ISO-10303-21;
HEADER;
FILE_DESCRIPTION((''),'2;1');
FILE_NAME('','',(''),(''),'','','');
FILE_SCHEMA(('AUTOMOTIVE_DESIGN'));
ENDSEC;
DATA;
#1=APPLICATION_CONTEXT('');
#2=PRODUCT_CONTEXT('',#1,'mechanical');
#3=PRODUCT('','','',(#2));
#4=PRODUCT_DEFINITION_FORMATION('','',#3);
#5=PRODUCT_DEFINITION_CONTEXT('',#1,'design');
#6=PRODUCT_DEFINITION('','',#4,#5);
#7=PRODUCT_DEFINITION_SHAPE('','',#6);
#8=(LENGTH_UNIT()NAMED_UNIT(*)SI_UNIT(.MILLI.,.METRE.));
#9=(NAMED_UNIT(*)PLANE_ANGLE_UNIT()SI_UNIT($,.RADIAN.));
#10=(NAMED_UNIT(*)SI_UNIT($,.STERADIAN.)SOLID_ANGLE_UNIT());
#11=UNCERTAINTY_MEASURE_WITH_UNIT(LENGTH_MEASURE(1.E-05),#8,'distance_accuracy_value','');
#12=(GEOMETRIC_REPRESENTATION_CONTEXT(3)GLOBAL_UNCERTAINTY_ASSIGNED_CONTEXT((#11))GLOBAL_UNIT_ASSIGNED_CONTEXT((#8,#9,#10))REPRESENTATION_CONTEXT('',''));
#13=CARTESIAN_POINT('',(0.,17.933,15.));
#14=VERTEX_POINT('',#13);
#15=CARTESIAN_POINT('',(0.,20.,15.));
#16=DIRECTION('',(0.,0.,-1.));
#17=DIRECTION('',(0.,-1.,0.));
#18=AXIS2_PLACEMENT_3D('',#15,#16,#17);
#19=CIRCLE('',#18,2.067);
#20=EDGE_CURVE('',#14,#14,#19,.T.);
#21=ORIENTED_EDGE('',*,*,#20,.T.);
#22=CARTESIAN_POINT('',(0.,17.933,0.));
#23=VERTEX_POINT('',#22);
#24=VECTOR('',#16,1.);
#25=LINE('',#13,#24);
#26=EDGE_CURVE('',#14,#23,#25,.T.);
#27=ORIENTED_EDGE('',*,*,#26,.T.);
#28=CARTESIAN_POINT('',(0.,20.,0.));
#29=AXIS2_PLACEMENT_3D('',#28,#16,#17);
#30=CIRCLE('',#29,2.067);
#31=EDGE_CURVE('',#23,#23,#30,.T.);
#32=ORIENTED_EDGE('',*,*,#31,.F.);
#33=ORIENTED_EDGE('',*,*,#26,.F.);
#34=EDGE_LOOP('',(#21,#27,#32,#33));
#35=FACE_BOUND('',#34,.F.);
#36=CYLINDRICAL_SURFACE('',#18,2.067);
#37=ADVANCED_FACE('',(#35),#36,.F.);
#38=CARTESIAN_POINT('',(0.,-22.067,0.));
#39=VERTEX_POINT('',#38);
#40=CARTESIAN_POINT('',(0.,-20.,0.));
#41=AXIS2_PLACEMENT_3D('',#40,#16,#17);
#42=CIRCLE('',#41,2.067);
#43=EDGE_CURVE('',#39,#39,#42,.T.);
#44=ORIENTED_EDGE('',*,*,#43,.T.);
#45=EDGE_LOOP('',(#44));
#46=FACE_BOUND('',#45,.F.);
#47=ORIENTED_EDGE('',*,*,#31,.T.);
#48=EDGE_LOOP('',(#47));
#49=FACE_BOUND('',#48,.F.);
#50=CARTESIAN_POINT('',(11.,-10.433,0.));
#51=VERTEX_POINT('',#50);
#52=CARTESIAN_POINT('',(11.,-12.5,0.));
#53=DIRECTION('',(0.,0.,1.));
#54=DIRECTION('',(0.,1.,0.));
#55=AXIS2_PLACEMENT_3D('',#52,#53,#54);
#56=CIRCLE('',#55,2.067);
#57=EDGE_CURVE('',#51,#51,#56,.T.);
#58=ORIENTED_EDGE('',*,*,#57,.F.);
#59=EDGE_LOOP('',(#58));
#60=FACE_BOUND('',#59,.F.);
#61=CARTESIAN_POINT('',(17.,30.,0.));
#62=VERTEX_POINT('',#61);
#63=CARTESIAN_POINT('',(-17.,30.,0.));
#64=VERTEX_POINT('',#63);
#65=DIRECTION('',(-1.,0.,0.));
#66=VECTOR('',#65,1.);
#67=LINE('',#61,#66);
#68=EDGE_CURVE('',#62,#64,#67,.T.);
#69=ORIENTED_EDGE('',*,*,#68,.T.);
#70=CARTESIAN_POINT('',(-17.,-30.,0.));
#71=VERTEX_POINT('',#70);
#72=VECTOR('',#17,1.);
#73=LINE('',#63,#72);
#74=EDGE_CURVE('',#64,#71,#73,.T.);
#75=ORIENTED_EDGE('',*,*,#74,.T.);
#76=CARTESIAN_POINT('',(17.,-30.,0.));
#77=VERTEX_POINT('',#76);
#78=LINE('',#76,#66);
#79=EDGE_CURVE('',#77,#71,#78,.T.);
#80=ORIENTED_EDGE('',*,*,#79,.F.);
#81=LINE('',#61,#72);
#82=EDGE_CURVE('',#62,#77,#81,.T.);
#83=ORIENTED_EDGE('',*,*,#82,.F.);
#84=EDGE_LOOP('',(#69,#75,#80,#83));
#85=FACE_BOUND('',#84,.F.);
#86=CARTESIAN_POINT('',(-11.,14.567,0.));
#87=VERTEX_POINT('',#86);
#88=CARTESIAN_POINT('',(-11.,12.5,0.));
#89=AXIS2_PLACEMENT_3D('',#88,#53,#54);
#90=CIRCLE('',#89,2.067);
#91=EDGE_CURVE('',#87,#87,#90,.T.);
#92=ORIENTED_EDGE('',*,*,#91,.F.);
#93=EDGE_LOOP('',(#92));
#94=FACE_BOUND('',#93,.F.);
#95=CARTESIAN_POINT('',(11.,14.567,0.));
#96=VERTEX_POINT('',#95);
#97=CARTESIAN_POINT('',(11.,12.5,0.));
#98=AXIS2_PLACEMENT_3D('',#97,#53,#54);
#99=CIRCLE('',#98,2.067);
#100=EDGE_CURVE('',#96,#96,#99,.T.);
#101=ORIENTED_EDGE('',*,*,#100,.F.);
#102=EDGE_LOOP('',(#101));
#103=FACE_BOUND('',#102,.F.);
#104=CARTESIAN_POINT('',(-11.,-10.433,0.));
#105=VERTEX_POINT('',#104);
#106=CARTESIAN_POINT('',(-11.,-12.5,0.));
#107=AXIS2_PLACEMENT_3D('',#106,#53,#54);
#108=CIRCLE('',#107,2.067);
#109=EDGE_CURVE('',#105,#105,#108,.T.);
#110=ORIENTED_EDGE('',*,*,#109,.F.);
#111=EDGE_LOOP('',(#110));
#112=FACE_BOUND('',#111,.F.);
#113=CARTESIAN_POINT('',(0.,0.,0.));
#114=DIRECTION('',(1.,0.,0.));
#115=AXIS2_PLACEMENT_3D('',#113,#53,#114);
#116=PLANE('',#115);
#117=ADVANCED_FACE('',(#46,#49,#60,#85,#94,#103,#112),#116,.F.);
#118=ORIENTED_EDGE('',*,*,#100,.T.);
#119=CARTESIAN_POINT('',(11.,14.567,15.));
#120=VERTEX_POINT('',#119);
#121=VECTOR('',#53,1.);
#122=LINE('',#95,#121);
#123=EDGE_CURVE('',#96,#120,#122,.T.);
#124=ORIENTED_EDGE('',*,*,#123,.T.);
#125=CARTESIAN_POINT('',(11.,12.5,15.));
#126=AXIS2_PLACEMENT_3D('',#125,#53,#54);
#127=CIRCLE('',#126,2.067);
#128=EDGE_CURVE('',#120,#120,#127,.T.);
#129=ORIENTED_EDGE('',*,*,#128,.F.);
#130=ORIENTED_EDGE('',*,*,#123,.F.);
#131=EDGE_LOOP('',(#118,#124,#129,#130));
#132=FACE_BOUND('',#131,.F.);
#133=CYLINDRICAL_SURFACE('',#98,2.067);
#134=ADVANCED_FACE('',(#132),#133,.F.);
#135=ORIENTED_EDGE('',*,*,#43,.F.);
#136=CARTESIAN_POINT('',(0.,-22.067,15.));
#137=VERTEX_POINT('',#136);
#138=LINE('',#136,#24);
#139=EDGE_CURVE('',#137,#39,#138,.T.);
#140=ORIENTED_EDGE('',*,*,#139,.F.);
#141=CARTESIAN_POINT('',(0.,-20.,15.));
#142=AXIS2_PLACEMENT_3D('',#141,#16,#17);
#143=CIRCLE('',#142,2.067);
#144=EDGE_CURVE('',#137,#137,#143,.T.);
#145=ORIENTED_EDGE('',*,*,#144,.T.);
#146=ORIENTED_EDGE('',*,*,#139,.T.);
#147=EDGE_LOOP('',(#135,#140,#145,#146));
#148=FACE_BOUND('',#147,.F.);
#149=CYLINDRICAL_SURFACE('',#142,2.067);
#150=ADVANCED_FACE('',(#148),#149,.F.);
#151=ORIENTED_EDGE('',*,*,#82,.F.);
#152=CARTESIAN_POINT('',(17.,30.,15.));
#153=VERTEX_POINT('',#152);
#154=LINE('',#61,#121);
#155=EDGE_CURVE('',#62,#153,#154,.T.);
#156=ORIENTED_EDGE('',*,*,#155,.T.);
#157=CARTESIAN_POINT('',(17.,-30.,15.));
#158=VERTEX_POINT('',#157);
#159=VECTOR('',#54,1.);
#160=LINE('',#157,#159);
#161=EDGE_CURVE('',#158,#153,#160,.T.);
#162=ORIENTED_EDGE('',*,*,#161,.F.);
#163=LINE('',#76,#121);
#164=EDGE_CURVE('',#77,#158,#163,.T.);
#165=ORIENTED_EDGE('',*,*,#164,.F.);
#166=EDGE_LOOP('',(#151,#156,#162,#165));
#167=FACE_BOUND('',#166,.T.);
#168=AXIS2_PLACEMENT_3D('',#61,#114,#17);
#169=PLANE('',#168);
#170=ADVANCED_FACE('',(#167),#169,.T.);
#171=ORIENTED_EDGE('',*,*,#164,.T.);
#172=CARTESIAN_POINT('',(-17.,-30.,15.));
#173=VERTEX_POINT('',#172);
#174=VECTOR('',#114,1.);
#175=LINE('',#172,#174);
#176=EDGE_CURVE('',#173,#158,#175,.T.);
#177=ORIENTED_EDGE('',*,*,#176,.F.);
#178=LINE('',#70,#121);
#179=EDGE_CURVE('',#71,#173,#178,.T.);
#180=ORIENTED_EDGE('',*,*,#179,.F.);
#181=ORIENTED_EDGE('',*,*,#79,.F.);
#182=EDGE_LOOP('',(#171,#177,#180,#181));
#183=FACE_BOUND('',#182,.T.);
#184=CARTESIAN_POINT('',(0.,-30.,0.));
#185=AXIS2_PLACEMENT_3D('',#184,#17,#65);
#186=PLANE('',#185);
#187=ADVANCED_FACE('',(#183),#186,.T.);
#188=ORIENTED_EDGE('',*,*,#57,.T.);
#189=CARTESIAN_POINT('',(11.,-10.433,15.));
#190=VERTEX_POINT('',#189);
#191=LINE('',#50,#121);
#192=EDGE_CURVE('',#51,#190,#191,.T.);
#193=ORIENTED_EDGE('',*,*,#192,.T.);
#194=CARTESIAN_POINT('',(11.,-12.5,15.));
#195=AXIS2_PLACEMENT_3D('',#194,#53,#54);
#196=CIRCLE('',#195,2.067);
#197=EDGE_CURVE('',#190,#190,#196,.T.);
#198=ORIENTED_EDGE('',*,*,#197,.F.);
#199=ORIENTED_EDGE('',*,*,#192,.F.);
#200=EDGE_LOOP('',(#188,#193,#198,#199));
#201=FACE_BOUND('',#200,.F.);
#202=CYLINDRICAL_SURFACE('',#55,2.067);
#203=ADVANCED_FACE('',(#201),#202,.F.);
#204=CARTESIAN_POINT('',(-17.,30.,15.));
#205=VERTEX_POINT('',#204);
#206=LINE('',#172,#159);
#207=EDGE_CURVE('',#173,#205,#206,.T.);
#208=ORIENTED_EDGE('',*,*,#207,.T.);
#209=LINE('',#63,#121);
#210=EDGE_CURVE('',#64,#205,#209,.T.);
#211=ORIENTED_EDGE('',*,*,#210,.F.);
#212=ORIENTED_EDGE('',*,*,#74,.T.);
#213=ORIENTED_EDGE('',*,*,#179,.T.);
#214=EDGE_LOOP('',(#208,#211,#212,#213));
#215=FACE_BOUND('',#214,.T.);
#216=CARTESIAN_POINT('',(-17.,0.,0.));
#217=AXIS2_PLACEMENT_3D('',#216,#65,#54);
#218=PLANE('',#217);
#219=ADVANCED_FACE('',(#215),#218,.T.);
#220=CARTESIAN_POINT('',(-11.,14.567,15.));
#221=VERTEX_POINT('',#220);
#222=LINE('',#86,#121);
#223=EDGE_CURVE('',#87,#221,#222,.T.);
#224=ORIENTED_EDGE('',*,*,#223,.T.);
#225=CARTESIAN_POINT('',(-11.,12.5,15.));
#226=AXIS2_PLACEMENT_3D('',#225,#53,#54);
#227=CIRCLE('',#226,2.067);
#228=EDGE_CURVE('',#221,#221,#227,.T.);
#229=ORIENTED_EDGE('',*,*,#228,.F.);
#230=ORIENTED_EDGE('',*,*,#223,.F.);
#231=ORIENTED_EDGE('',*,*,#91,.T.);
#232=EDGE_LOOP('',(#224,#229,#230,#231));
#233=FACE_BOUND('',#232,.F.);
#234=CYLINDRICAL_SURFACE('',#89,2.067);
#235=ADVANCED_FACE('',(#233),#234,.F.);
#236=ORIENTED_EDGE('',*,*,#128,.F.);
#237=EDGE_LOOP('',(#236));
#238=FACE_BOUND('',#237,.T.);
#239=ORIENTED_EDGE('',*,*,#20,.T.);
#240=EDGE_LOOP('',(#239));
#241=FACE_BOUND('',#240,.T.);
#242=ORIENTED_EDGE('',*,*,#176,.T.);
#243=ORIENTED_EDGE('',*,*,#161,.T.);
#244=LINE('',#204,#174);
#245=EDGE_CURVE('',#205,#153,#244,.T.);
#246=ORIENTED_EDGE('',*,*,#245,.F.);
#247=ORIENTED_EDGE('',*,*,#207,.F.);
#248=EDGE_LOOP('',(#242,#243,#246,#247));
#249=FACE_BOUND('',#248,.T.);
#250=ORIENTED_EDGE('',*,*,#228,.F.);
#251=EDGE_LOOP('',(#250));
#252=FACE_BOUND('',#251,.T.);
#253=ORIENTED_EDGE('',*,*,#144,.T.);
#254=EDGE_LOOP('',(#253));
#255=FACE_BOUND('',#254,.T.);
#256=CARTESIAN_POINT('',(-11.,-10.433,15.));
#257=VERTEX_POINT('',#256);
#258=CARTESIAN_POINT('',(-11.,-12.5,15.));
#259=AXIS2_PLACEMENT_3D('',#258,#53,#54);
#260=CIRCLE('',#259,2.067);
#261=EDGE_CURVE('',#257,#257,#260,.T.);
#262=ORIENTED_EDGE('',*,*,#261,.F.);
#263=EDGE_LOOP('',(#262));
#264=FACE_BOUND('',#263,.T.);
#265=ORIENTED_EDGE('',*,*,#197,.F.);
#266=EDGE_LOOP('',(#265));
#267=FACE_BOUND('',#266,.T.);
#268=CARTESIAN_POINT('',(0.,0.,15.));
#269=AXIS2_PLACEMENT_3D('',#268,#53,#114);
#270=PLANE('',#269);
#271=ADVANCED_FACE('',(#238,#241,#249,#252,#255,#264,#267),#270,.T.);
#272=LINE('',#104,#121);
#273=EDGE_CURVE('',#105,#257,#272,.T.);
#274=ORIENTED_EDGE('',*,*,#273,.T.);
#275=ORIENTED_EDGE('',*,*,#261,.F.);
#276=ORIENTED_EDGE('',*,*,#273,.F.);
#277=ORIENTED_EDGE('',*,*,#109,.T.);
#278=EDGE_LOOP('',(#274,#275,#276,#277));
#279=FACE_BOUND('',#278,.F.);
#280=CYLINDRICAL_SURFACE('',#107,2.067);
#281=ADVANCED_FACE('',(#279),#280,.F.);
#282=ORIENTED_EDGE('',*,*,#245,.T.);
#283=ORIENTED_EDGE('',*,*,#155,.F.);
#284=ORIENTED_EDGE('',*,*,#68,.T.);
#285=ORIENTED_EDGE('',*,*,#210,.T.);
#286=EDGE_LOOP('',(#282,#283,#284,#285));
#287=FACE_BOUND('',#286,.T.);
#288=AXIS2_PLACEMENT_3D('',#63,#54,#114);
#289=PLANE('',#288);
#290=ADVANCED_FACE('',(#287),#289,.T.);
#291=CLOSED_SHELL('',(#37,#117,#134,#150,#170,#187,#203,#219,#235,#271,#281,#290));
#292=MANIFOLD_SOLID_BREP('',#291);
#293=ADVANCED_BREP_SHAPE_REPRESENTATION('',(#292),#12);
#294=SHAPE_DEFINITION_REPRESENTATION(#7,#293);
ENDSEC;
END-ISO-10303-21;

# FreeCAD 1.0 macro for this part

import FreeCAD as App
import Part
import Sketcher
Q = App.Units.Quantity

doc = App.newDocument("Part")
body = doc.addObject("PartDesign::Body", "Body")

sketch1 = body.newObject("Sketcher::SketchObject", "Sketch")
sketch1.AttachmentSupport = (doc.getObject("XY_Plane"), [""])
sketch1.MapMode = "FlatFace"
sketch1.addGeometry([
    Part.LineSegment(App.Vector(-17, 30, 0), App.Vector(-17, -30, 0)),
    Part.LineSegment(App.Vector(-17, -30, 0), App.Vector(17, -30, 0)),
    Part.LineSegment(App.Vector(17, -30, 0), App.Vector(17, 30, 0)),
    Part.LineSegment(App.Vector(17, 30, 0), App.Vector(-17, 30, 0)),
], False)
sketch1.addConstraint([
    Sketcher.Constraint("Coincident", 0, 2, 1, 1),
    Sketcher.Constraint("Coincident", 1, 2, 2, 1),
    Sketcher.Constraint("Coincident", 2, 2, 3, 1),
    Sketcher.Constraint("Coincident", 3, 2, 0, 1),
    Sketcher.Constraint("Vertical", 0),
    Sketcher.Constraint("Horizontal", 1),
    Sketcher.Constraint("Vertical", 2),
    Sketcher.Constraint("Horizontal", 3),
    Sketcher.Constraint("Symmetric", 0, 2, 2, 2, -1, 1),
    Sketcher.Constraint("DistanceX", 1, 1, 1, 2, Q("34 mm")),
    Sketcher.Constraint("DistanceY", 0, 2, 0, 1, Q("60 mm")),
])
pad1 = body.newObject("PartDesign::Pad", "Pad")
pad1.Profile = sketch1
pad1.Length = 15

sketch2 = body.newObject("Sketcher::SketchObject", "Sketch001")
sketch2.AttachmentSupport = (doc.getObject("XY_Plane"), [""])
sketch2.MapMode = "FlatFace"
sketch2.addGeometry([
    Part.Circle(App.Vector(-11, 12.5, 0), App.Vector(0, 0, 1), 2.1),
    Part.Circle(App.Vector(-11, -12.5, 0), App.Vector(0, 0, 1), 2.1),
    Part.Circle(App.Vector(11, -12.5, 0), App.Vector(0, 0, 1), 2.1),
    Part.Circle(App.Vector(11, 12.5, 0), App.Vector(0, 0, 1), 2.1),
], False)
sketch2.addConstraint([
    Sketcher.Constraint("Equal", 0, 1),
    Sketcher.Constraint("Equal", 1, 2),
    Sketcher.Constraint("Equal", 2, 3),
    Sketcher.Constraint("Symmetric", 0, 3, 2, 3, -1, 1),
    Sketcher.Constraint("Symmetric", 1, 3, 3, 3, -1, 1),
    Sketcher.Constraint("Symmetric", 1, 3, 2, 3, -2),
    Sketcher.Constraint("Diameter", 0, Q("4.134 mm")),
    Sketcher.Constraint("DistanceX", 0, 3, -1, 1, Q("11 mm")),
    Sketcher.Constraint("DistanceY", 1, 3, 0, 3, Q("25 mm")),
])
doc.recompute()
hole = body.newObject("PartDesign::Hole", "Hole")
hole.Profile = sketch2
hole.ThreadType = "None"
hole.Diameter = 4.134
hole.DepthType = "ThroughAll"
hole.Reversed = True

sketch3 = body.newObject("Sketcher::SketchObject", "Sketch002")
sketch3.AttachmentSupport = (doc.getObject("XY_Plane"), [""])
sketch3.MapMode = "FlatFace"
sketch3.AttachmentOffset = App.Placement(App.Vector(0, 0, 15), App.Rotation())
sketch3.addGeometry([
    Part.Circle(App.Vector(0, 20, 0), App.Vector(0, 0, 1), 2.1),
    Part.Circle(App.Vector(0, -20, 0), App.Vector(0, 0, 1), 2.1),
], False)
sketch3.addConstraint([
    Sketcher.Constraint("Equal", 0, 1),
    Sketcher.Constraint("Symmetric", 0, 3, 1, 3, -1, 1),
    Sketcher.Constraint("PointOnObject", 0, 3, -2),
    Sketcher.Constraint("Diameter", 0, Q("4.134 mm")),
    Sketcher.Constraint("DistanceY", -1, 1, 0, 3, Q("20 mm")),
])
doc.recompute()
hole2 = body.newObject("PartDesign::Hole", "Hole001")
hole2.Profile = sketch3
hole2.ThreadType = "None"
hole2.Diameter = 4.134
hole2.DepthType = "ThroughAll"

doc.recompute()
